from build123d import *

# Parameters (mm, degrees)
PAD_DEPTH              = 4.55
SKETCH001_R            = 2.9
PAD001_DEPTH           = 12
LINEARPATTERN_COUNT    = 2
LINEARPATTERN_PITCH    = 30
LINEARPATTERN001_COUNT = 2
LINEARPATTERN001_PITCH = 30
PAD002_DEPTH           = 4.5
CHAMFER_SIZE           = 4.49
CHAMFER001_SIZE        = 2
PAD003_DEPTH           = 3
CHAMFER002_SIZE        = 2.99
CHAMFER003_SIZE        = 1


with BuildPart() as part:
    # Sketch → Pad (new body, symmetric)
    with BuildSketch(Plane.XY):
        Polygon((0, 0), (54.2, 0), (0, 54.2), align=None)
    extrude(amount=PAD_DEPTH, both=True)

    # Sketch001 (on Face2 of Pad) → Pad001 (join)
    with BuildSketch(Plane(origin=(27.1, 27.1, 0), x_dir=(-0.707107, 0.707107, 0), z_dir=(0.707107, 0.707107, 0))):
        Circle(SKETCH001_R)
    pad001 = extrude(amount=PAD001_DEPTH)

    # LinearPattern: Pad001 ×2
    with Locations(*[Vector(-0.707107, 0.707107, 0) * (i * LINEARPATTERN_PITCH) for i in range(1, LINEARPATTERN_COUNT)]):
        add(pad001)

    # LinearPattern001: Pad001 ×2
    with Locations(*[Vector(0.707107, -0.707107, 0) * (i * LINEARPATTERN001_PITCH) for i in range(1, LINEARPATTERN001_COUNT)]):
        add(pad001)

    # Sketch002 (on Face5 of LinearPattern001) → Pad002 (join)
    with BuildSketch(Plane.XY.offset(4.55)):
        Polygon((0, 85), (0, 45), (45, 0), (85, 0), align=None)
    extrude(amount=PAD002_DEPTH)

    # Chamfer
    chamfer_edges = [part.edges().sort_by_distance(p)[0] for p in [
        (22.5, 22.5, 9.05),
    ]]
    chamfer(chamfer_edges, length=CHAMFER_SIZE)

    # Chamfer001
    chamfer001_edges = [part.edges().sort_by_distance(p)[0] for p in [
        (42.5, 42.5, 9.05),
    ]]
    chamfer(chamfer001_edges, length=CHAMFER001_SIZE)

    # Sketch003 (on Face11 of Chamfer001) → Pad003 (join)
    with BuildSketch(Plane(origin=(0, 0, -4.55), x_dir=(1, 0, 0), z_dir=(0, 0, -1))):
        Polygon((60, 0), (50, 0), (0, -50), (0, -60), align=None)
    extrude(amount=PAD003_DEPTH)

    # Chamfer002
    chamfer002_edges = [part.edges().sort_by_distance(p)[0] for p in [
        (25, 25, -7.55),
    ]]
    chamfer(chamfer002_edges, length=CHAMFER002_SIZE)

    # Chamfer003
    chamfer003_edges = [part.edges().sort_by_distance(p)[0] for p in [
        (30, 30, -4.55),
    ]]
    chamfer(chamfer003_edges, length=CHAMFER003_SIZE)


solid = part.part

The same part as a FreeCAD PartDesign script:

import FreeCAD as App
import Part
import Sketcher
from FreeCAD import Vector
Q = App.Units.Quantity


def edges_at(feature, points):
    """Names of the edges that pass closest to the given points."""
    edges = feature.Shape.Edges
    near = lambda p: min(range(len(edges)), key=lambda i: edges[i].distToShape(Part.Vertex(*p))[0])
    return sorted({f"Edge{near(p) + 1}" for p in points})


def add_polygon(sketch, points):
    """Adds a closed chain of lines whose ends are joined by coincident constraints."""
    first, n = sketch.GeometryCount, len(points)
    for a, b in zip(points, points[1:] + points[:1]):
        sketch.addGeometry(Part.LineSegment(App.Vector(*a, 0), App.Vector(*b, 0)), False)
    for i in range(n):
        sketch.addConstraint(Sketcher.Constraint("Coincident", first + i, 2, first + (i + 1) % n, 1))

doc = App.newDocument("Part")
body = doc.addObject("PartDesign::Body", "Body")

# Sketch on XY plane
sketch1 = doc.addObject("Sketcher::SketchObject", "Sketch")
body.addObject(sketch1)
sketch1.AttachmentSupport = (doc.XY_Plane, [""])
sketch1.MapMode = "FlatFace"
add_polygon(sketch1, [(0, 0), (54, 0), (0, 54)])  # lines 0-2
sketch1.addConstraint([
    Sketcher.Constraint("Horizontal", 0),
    Sketcher.Constraint("Vertical", 2),
    Sketcher.Constraint("Coincident", 2, 2, -1, 1),
    Sketcher.Constraint("Equal", 0, 2),
    Sketcher.Constraint("DistanceX", 0, 1, 0, 2, Q("54.2 mm")),
])
pad1 = doc.addObject("PartDesign::Pad", "Pad")
body.addObject(pad1)
pad1.Profile = sketch1
pad1.Length = 9.1
pad1.Midplane = True

# Sketch on an angled plane
sketch2 = doc.addObject("Sketcher::SketchObject", "Sketch001")
body.addObject(sketch2)
sketch2.Placement = App.Placement(Vector(27.1, 27.1, 0), App.Rotation(Vector(-0.707106781, 0.707106781, 0), Vector(0, 0, 0.999999999), Vector(0.707106781, 0.707106781, 0), "ZXY"))
sketch2.addGeometry(Part.Circle(Vector(0, 0, 0), Vector(0, 0, 1), 2.9), False)
sketch2.addConstraint([
    Sketcher.Constraint("Coincident", 0, 3, -1, 1),
    Sketcher.Constraint("Diameter", 0, Q("5.8 mm")),
])
pad2 = doc.addObject("PartDesign::Pad", "Pad001")
body.addObject(pad2)
pad2.Profile = sketch2
pad2.Length = 12
doc.recompute()

datumline = doc.addObject("PartDesign::Line", "DatumLine")
body.addObject(datumline)
datumline.Placement = App.Placement(Vector(0, 0, 0), App.Rotation(Vector(0, 0, 1), Vector(-0.707106781, 0.707106781, 0)))
linearpattern = doc.addObject("PartDesign::LinearPattern", "LinearPattern")
body.addObject(linearpattern)
linearpattern.Originals = [pad2]
linearpattern.Direction = (datumline, [""])
linearpattern.Mode = "offset"
linearpattern.Offset = 30.000009
linearpattern.Occurrences = 2
body.Tip = linearpattern
doc.recompute()

datumline2 = doc.addObject("PartDesign::Line", "DatumLine001")
body.addObject(datumline2)
datumline2.Placement = App.Placement(Vector(0, 0, 0), App.Rotation(Vector(0, 0, 1), Vector(0.707106781, -0.707106781, 0)))
linearpattern2 = doc.addObject("PartDesign::LinearPattern", "LinearPattern001")
body.addObject(linearpattern2)
linearpattern2.Originals = [pad2]
linearpattern2.Direction = (datumline2, [""])
linearpattern2.Mode = "offset"
linearpattern2.Offset = 30.000009
linearpattern2.Occurrences = 2
body.Tip = linearpattern2

# Sketch on XY plane
sketch3 = doc.addObject("Sketcher::SketchObject", "Sketch002")
body.addObject(sketch3)
sketch3.AttachmentSupport = (doc.XY_Plane, [""])
sketch3.MapMode = "FlatFace"
sketch3.AttachmentOffset = App.Placement(Vector(0, 0, 4.55), App.Rotation())
add_polygon(sketch3, [(0, 85), (0, 45), (45, 0), (85, 0)])  # lines 0-3
sketch3.addConstraint([
    Sketcher.Constraint("Vertical", 0),
    Sketcher.Constraint("Horizontal", 2),
    Sketcher.Constraint("PointOnObject", 0, 2, -2),
    Sketcher.Constraint("PointOnObject", 1, 2, -1),
    Sketcher.Constraint("Parallel", 1, 3),
    Sketcher.Constraint("Equal", 2, 0),
    Sketcher.Constraint("DistanceX", 2, 1, 2, 2, Q("40 mm")),
    Sketcher.Constraint("DistanceY", -1, 1, 0, 2, Q("45 mm")),
])
pad3 = doc.addObject("PartDesign::Pad", "Pad002")
body.addObject(pad3)
pad3.Profile = sketch3
pad3.Length = 4.5
doc.recompute()

chamfer = doc.addObject("PartDesign::Chamfer", "Chamfer")
body.addObject(chamfer)
chamfer.Base = (pad3, edges_at(pad3, [(22.5, 22.5, 9.05)]))
chamfer.Size = 4.49
doc.recompute()

chamfer2 = doc.addObject("PartDesign::Chamfer", "Chamfer001")
body.addObject(chamfer2)
chamfer2.Base = (chamfer, edges_at(chamfer, [(42.5, 42.5, 9.05)]))
chamfer2.Size = 2

# Sketch on XY plane
sketch4 = doc.addObject("Sketcher::SketchObject", "Sketch003")
body.addObject(sketch4)
sketch4.AttachmentSupport = (doc.XY_Plane, [""])
sketch4.MapMode = "FlatFace"
sketch4.AttachmentOffset = App.Placement(Vector(0, 0, -4.55), App.Rotation())
add_polygon(sketch4, [(60, 0), (50, 0), (0, 50), (0, 60)])  # lines 0-3
sketch4.addConstraint([
    Sketcher.Constraint("Horizontal", 0),
    Sketcher.Constraint("Vertical", 2),
    Sketcher.Constraint("PointOnObject", 0, 2, -1),
    Sketcher.Constraint("PointOnObject", 1, 2, -2),
    Sketcher.Constraint("Parallel", 1, 3),
    Sketcher.Constraint("Equal", 0, 2),
    Sketcher.Constraint("DistanceX", 0, 2, 0, 1, Q("10 mm")),
    Sketcher.Constraint("DistanceX", -1, 1, 0, 2, Q("50 mm")),
])
pad4 = doc.addObject("PartDesign::Pad", "Pad003")
body.addObject(pad4)
pad4.Profile = sketch4
pad4.Length = 3
pad4.Reversed = True
doc.recompute()

chamfer3 = doc.addObject("PartDesign::Chamfer", "Chamfer002")
body.addObject(chamfer3)
chamfer3.Base = (pad4, edges_at(pad4, [(25, 25, -7.55)]))
chamfer3.Size = 2.99
doc.recompute()

chamfer4 = doc.addObject("PartDesign::Chamfer", "Chamfer003")
body.addObject(chamfer4)
chamfer4.Base = (chamfer3, edges_at(chamfer3, [(30, 30, -4.55)]))
chamfer4.Size = 1

doc.recompute()
